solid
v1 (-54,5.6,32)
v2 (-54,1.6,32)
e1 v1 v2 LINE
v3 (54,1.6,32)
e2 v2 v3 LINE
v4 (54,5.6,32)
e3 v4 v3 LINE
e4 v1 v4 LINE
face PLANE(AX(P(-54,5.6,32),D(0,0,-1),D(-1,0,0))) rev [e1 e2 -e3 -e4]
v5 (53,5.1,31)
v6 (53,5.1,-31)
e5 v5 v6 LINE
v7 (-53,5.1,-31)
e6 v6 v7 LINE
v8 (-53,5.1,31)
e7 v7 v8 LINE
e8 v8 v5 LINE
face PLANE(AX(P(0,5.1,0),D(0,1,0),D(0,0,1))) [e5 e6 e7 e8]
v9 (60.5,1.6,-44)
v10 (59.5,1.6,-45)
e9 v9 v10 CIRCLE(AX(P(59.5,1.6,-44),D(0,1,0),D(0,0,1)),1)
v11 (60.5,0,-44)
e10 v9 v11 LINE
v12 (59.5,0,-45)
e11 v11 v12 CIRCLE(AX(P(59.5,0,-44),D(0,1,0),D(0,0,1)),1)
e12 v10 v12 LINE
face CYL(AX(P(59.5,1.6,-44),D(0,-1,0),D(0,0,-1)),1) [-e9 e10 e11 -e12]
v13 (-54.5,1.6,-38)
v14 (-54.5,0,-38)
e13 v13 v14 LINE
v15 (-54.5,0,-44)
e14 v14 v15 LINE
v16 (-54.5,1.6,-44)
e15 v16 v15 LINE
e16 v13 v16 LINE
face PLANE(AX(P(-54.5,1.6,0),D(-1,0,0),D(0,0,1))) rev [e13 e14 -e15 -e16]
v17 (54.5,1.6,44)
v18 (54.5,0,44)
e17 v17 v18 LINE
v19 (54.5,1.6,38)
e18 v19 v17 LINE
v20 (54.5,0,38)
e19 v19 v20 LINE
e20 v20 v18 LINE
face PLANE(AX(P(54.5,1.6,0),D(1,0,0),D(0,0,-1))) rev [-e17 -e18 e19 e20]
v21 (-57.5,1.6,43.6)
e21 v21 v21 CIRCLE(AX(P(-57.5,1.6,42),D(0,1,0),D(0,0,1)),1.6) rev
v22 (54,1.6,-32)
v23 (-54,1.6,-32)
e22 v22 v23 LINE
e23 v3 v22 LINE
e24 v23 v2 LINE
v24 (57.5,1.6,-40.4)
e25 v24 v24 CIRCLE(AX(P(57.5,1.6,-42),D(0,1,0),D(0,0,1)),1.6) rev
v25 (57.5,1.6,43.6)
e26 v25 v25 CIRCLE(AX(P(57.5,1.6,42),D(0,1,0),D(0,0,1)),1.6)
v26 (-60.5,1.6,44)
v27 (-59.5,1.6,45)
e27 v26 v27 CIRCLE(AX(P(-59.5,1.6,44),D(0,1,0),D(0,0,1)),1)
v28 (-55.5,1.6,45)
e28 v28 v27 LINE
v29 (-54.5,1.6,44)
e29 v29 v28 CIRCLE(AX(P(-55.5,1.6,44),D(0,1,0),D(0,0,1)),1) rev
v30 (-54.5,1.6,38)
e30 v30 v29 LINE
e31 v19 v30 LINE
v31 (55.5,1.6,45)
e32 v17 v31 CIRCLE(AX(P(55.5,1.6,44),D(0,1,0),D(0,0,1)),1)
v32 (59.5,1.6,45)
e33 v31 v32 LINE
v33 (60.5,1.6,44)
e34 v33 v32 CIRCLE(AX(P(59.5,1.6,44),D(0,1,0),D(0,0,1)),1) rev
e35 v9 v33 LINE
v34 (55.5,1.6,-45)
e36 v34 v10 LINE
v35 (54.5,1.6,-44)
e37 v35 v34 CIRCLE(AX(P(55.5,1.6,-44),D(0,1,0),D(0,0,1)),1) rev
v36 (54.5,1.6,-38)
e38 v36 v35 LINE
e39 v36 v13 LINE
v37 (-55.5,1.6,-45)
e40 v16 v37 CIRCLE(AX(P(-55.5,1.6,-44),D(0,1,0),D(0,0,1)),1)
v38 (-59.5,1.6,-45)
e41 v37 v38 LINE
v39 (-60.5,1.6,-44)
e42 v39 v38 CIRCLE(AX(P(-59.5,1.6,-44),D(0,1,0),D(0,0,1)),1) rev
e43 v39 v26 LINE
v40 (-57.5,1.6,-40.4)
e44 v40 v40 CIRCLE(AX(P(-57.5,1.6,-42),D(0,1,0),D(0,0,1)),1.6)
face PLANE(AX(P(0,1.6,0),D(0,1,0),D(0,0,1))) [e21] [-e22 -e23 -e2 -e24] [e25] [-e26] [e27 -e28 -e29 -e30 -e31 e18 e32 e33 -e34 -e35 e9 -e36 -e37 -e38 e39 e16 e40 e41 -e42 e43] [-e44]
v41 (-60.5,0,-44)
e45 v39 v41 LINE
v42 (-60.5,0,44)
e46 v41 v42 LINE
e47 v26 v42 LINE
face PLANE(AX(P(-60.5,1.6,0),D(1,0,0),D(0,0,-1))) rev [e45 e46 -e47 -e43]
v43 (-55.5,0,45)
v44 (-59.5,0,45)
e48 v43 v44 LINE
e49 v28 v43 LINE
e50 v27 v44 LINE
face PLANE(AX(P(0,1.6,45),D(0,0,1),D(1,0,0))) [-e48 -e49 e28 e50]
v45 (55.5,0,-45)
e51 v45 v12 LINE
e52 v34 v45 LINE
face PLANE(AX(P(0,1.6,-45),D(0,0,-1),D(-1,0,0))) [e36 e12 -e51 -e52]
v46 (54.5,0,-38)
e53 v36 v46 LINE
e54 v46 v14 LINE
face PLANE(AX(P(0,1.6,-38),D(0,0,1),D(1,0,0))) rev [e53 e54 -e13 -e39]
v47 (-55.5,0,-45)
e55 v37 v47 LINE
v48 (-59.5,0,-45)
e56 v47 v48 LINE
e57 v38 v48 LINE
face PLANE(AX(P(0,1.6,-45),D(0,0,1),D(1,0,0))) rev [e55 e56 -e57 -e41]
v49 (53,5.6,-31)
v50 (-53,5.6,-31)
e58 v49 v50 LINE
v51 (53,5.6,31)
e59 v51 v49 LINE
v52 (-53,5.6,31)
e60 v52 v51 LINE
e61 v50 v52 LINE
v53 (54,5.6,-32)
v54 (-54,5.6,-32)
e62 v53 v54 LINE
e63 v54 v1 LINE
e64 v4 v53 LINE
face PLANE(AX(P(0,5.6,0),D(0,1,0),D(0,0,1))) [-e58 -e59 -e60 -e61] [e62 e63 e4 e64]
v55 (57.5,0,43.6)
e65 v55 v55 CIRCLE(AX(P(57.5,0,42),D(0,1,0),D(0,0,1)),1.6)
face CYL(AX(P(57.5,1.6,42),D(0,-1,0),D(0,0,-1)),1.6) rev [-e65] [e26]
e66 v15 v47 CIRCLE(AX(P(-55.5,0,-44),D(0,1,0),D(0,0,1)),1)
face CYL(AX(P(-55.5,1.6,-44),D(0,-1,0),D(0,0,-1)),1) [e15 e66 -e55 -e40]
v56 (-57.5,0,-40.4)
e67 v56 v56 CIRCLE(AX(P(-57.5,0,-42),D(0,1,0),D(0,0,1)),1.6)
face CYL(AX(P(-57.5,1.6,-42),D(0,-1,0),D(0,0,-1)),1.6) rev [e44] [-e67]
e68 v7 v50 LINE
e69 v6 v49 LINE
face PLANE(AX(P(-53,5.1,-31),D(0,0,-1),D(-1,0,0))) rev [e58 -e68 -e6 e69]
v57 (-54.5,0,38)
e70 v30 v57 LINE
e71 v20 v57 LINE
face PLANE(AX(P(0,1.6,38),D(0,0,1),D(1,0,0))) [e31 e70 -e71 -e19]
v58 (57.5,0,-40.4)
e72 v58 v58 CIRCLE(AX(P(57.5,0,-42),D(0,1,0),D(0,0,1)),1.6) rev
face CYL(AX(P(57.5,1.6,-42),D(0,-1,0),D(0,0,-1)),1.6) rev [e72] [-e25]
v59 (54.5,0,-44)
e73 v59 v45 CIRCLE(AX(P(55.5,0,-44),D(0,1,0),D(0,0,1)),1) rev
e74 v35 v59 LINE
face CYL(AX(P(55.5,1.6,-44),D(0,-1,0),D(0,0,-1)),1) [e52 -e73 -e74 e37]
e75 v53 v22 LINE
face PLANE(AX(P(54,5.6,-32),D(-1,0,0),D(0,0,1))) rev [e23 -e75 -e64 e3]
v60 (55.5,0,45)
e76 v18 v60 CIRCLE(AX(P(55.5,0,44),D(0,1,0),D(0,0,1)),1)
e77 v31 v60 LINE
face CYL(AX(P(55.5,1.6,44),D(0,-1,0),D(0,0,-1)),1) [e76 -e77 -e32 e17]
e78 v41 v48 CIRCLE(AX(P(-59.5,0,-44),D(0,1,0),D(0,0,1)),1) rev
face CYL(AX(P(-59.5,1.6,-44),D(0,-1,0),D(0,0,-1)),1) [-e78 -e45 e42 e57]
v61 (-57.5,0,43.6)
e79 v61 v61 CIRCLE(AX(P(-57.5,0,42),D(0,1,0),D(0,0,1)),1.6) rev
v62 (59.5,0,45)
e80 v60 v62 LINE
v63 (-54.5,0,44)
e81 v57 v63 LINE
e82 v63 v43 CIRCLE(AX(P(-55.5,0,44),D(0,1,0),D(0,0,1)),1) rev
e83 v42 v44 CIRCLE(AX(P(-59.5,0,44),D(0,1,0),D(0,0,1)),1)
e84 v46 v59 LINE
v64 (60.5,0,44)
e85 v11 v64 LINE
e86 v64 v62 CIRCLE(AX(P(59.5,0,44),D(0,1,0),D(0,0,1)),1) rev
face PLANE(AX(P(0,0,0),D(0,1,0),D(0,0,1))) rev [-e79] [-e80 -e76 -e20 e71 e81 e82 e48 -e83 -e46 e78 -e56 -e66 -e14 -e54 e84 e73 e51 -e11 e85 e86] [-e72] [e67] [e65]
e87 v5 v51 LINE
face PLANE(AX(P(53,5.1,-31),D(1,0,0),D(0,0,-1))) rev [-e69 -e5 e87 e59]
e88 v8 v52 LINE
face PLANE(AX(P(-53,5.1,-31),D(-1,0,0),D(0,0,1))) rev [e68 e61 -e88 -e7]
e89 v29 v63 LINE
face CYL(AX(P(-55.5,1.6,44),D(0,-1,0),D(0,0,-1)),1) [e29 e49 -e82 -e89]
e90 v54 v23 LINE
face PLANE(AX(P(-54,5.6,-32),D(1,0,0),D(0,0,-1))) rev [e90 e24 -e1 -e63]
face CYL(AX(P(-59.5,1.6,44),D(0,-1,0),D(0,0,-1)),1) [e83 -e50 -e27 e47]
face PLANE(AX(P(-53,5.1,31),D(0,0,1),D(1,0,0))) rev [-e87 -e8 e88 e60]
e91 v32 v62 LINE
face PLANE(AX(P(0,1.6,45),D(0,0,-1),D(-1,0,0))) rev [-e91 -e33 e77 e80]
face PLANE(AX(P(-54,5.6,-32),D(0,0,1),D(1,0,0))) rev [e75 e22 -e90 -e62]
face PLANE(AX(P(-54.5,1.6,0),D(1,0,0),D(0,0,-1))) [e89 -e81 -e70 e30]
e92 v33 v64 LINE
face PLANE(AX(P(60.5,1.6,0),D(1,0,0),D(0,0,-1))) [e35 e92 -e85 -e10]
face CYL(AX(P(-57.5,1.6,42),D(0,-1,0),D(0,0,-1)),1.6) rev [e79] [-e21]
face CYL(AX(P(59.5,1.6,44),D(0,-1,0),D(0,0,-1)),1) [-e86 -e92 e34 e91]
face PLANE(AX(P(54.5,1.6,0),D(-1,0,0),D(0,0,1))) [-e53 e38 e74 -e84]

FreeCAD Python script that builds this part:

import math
import FreeCAD as App
import Part
import Sketcher

V = App.Vector
Q = App.Units.Quantity

doc = App.newDocument("Part")
body = doc.addObject("PartDesign::Body", "Body")

# Sketch on XZ plane
sketch1 = body.newObject("Sketcher::SketchObject", "Sketch")
sketch1.AttachmentSupport = (doc.getObject("XZ_Plane"), [""])
sketch1.MapMode = "FlatFace"
sketch1.addGeometry([
    Part.LineSegment(V(54.5, -44, 0), V(54.5, -38, 0)),  # 0
    Part.LineSegment(V(54.5, -38, 0), V(-54.5, -38, 0)),  # 1
    Part.LineSegment(V(-54.5, -38, 0), V(-54.5, -44, 0)),  # 2
    Part.ArcOfCircle(Part.Circle(V(-55.5, -44, 0), V(0, 0, 1), 1), math.radians(-90), math.radians(0)),  # 3
    Part.LineSegment(V(-55.5, -45, 0), V(-59.5, -45, 0)),  # 4
    Part.ArcOfCircle(Part.Circle(V(-59.5, -44, 0), V(0, 0, 1), 1), math.radians(-180), math.radians(-90)),  # 5
    Part.LineSegment(V(-60.5, -44, 0), V(-60.5, 44, 0)),  # 6
    Part.ArcOfCircle(Part.Circle(V(-59.5, 44, 0), V(0, 0, 1), 1), math.radians(90), math.radians(180)),  # 7
    Part.LineSegment(V(-59.5, 45, 0), V(-55.5, 45, 0)),  # 8
    Part.ArcOfCircle(Part.Circle(V(-55.5, 44, 0), V(0, 0, 1), 1), math.radians(0), math.radians(90)),  # 9
    Part.LineSegment(V(-54.5, 44, 0), V(-54.5, 38, 0)),  # 10
    Part.LineSegment(V(-54.5, 38, 0), V(54.5, 38, 0)),  # 11
    Part.LineSegment(V(54.5, 38, 0), V(54.5, 44, 0)),  # 12
    Part.ArcOfCircle(Part.Circle(V(55.5, 44, 0), V(0, 0, 1), 1), math.radians(90), math.radians(180)),  # 13
    Part.LineSegment(V(55.5, 45, 0), V(59.5, 45, 0)),  # 14
    Part.ArcOfCircle(Part.Circle(V(59.5, 44, 0), V(0, 0, 1), 1), math.radians(0), math.radians(90)),  # 15
    Part.LineSegment(V(60.5, 44, 0), V(60.5, -44, 0)),  # 16
    Part.ArcOfCircle(Part.Circle(V(59.5, -44, 0), V(0, 0, 1), 1), math.radians(-90), math.radians(0)),  # 17
    Part.LineSegment(V(59.5, -45, 0), V(55.5, -45, 0)),  # 18
    Part.ArcOfCircle(Part.Circle(V(55.5, -44, 0), V(0, 0, 1), 1), math.radians(-180), math.radians(-90)),  # 19
    Part.Circle(V(-57.5, 42, 0), V(0, 0, 1), 1.6),  # 20
    Part.Circle(V(57.5, 42, 0), V(0, 0, 1), 1.6),  # 21
    Part.Circle(V(-57.5, -42, 0), V(0, 0, 1), 1.6),  # 22
    Part.Circle(V(57.5, -42, 0), V(0, 0, 1), 1.6),  # 23
], False)
sketch1.addConstraint([
    Sketcher.Constraint("Coincident", 0, 2, 1, 1),
    Sketcher.Constraint("Coincident", 1, 2, 2, 1),
    Sketcher.Constraint("Tangent", 2, 2, 3, 2),
    Sketcher.Constraint("Tangent", 3, 1, 4, 1),
    Sketcher.Constraint("Tangent", 4, 2, 5, 2),
    Sketcher.Constraint("Tangent", 5, 1, 6, 1),
    Sketcher.Constraint("Tangent", 6, 2, 7, 2),
    Sketcher.Constraint("Tangent", 7, 1, 8, 1),
    Sketcher.Constraint("Tangent", 8, 2, 9, 2),
    Sketcher.Constraint("Tangent", 9, 1, 10, 1),
    Sketcher.Constraint("Coincident", 10, 2, 11, 1),
    Sketcher.Constraint("Coincident", 11, 2, 12, 1),
    Sketcher.Constraint("Tangent", 12, 2, 13, 2),
    Sketcher.Constraint("Tangent", 13, 1, 14, 1),
    Sketcher.Constraint("Tangent", 14, 2, 15, 2),
    Sketcher.Constraint("Tangent", 15, 1, 16, 1),
    Sketcher.Constraint("Tangent", 16, 2, 17, 2),
    Sketcher.Constraint("Tangent", 17, 1, 18, 1),
    Sketcher.Constraint("Tangent", 18, 2, 19, 2),
    Sketcher.Constraint("Tangent", 19, 1, 0, 1),
    Sketcher.Constraint("Vertical", 0),
    Sketcher.Constraint("Horizontal", 1),
    Sketcher.Constraint("Vertical", 2),
    Sketcher.Constraint("Horizontal", 4),
    Sketcher.Constraint("Vertical", 6),
    Sketcher.Constraint("Horizontal", 8),
    Sketcher.Constraint("Vertical", 10),
    Sketcher.Constraint("Horizontal", 11),
    Sketcher.Constraint("Vertical", 12),
    Sketcher.Constraint("Horizontal", 14),
    Sketcher.Constraint("Vertical", 16),
    Sketcher.Constraint("Horizontal", 18),
    Sketcher.Constraint("Equal", 3, 5),
    Sketcher.Constraint("Equal", 5, 7),
    Sketcher.Constraint("Equal", 7, 9),
    Sketcher.Constraint("Equal", 9, 13),
    Sketcher.Constraint("Equal", 13, 15),
    Sketcher.Constraint("Equal", 15, 17),
    Sketcher.Constraint("Equal", 17, 19),
    Sketcher.Constraint("Equal", 20, 21),
    Sketcher.Constraint("Equal", 21, 22),
    Sketcher.Constraint("Equal", 22, 23),
    Sketcher.Constraint("Symmetric", 3, 3, 13, 3, -1, 1),
    Sketcher.Constraint("Symmetric", 7, 3, 17, 3, -1, 1),
    Sketcher.Constraint("Symmetric", 21, 3, 22, 3, -1, 1),
    Sketcher.Constraint("Symmetric", 20, 3, 23, 3, -1, 1),
    Sketcher.Constraint("Symmetric", 0, 2, 10, 2, -1, 1),
    Sketcher.Constraint("Symmetric", 9, 3, 13, 3, -2),
    Sketcher.Constraint("Symmetric", 20, 3, 21, 3, -2),
    Sketcher.Constraint("Radius", 3, Q("1 mm")),
    Sketcher.Constraint("Diameter", 20, Q("3.2 mm")),
    Sketcher.Constraint("DistanceX", 1, 2, 1, 1, Q("109 mm")),
    Sketcher.Constraint("DistanceX", 4, 2, 4, 1, Q("4 mm")),
    Sketcher.Constraint("DistanceY", 0, 1, 0, 2, Q("6 mm")),
    Sketcher.Constraint("DistanceY", 6, 1, 6, 2, Q("88 mm")),
    Sketcher.Constraint("DistanceY", -1, 1, 20, 3, Q("42 mm")),
    Sketcher.Constraint("DistanceX", 7, 3, 20, 3, Q("2 mm")),
])
pad1 = body.newObject("PartDesign::Pad", "Pad")
pad1.Profile = sketch1
pad1.Length = 1.6
pad1.Reversed = True

# Sketch on XZ plane
sketch2 = body.newObject("Sketcher::SketchObject", "Sketch001")
sketch2.AttachmentSupport = (doc.getObject("XZ_Plane"), [""])
sketch2.MapMode = "FlatFace"
sketch2.AttachmentOffset = App.Placement(V(0, 0, -1.6), App.Rotation())
sketch2.addGeometry([
    Part.LineSegment(V(-54, -32, 0), V(-54, 32, 0)),
    Part.LineSegment(V(-54, 32, 0), V(54, 32, 0)),
    Part.LineSegment(V(54, 32, 0), V(54, -32, 0)),
    Part.LineSegment(V(54, -32, 0), V(-54, -32, 0)),
], False)
sketch2.addConstraint([
    Sketcher.Constraint("Coincident", 0, 2, 1, 1),
    Sketcher.Constraint("Coincident", 1, 2, 2, 1),
    Sketcher.Constraint("Coincident", 2, 2, 3, 1),
    Sketcher.Constraint("Coincident", 3, 2, 0, 1),
    Sketcher.Constraint("Vertical", 0),
    Sketcher.Constraint("Horizontal", 1),
    Sketcher.Constraint("Vertical", 2),
    Sketcher.Constraint("Horizontal", 3),
    Sketcher.Constraint("Symmetric", 0, 2, 2, 2, -1, 1),
    Sketcher.Constraint("DistanceX", 1, 1, 1, 2, Q("108 mm")),
    Sketcher.Constraint("DistanceY", 0, 1, 0, 2, Q("64 mm")),
])
pad2 = body.newObject("PartDesign::Pad", "Pad001")
pad2.Profile = sketch2
pad2.Length = 4
pad2.Reversed = True

# Sketch on XZ plane
sketch3 = body.newObject("Sketcher::SketchObject", "Sketch002")
sketch3.AttachmentSupport = (doc.getObject("XZ_Plane"), [""])
sketch3.MapMode = "FlatFace"
sketch3.AttachmentOffset = App.Placement(V(0, 0, -5.6), App.Rotation())
sketch3.addGeometry([
    Part.LineSegment(V(-53, -31, 0), V(-53, 31, 0)),
    Part.LineSegment(V(-53, 31, 0), V(53, 31, 0)),
    Part.LineSegment(V(53, 31, 0), V(53, -31, 0)),
    Part.LineSegment(V(53, -31, 0), V(-53, -31, 0)),
], False)
sketch3.addConstraint([
    Sketcher.Constraint("Coincident", 0, 2, 1, 1),
    Sketcher.Constraint("Coincident", 1, 2, 2, 1),
    Sketcher.Constraint("Coincident", 2, 2, 3, 1),
    Sketcher.Constraint("Coincident", 3, 2, 0, 1),
    Sketcher.Constraint("Vertical", 0),
    Sketcher.Constraint("Horizontal", 1),
    Sketcher.Constraint("Vertical", 2),
    Sketcher.Constraint("Horizontal", 3),
    Sketcher.Constraint("Symmetric", 0, 2, 2, 2, -1, 1),
    Sketcher.Constraint("DistanceX", 1, 1, 1, 2, Q("106 mm")),
    Sketcher.Constraint("DistanceY", 0, 1, 0, 2, Q("62 mm")),
])
pocket1 = body.newObject("PartDesign::Pocket", "Pocket")
pocket1.Profile = sketch3
pocket1.Length = 0.5
pocket1.Reversed = True

doc.recompute()
